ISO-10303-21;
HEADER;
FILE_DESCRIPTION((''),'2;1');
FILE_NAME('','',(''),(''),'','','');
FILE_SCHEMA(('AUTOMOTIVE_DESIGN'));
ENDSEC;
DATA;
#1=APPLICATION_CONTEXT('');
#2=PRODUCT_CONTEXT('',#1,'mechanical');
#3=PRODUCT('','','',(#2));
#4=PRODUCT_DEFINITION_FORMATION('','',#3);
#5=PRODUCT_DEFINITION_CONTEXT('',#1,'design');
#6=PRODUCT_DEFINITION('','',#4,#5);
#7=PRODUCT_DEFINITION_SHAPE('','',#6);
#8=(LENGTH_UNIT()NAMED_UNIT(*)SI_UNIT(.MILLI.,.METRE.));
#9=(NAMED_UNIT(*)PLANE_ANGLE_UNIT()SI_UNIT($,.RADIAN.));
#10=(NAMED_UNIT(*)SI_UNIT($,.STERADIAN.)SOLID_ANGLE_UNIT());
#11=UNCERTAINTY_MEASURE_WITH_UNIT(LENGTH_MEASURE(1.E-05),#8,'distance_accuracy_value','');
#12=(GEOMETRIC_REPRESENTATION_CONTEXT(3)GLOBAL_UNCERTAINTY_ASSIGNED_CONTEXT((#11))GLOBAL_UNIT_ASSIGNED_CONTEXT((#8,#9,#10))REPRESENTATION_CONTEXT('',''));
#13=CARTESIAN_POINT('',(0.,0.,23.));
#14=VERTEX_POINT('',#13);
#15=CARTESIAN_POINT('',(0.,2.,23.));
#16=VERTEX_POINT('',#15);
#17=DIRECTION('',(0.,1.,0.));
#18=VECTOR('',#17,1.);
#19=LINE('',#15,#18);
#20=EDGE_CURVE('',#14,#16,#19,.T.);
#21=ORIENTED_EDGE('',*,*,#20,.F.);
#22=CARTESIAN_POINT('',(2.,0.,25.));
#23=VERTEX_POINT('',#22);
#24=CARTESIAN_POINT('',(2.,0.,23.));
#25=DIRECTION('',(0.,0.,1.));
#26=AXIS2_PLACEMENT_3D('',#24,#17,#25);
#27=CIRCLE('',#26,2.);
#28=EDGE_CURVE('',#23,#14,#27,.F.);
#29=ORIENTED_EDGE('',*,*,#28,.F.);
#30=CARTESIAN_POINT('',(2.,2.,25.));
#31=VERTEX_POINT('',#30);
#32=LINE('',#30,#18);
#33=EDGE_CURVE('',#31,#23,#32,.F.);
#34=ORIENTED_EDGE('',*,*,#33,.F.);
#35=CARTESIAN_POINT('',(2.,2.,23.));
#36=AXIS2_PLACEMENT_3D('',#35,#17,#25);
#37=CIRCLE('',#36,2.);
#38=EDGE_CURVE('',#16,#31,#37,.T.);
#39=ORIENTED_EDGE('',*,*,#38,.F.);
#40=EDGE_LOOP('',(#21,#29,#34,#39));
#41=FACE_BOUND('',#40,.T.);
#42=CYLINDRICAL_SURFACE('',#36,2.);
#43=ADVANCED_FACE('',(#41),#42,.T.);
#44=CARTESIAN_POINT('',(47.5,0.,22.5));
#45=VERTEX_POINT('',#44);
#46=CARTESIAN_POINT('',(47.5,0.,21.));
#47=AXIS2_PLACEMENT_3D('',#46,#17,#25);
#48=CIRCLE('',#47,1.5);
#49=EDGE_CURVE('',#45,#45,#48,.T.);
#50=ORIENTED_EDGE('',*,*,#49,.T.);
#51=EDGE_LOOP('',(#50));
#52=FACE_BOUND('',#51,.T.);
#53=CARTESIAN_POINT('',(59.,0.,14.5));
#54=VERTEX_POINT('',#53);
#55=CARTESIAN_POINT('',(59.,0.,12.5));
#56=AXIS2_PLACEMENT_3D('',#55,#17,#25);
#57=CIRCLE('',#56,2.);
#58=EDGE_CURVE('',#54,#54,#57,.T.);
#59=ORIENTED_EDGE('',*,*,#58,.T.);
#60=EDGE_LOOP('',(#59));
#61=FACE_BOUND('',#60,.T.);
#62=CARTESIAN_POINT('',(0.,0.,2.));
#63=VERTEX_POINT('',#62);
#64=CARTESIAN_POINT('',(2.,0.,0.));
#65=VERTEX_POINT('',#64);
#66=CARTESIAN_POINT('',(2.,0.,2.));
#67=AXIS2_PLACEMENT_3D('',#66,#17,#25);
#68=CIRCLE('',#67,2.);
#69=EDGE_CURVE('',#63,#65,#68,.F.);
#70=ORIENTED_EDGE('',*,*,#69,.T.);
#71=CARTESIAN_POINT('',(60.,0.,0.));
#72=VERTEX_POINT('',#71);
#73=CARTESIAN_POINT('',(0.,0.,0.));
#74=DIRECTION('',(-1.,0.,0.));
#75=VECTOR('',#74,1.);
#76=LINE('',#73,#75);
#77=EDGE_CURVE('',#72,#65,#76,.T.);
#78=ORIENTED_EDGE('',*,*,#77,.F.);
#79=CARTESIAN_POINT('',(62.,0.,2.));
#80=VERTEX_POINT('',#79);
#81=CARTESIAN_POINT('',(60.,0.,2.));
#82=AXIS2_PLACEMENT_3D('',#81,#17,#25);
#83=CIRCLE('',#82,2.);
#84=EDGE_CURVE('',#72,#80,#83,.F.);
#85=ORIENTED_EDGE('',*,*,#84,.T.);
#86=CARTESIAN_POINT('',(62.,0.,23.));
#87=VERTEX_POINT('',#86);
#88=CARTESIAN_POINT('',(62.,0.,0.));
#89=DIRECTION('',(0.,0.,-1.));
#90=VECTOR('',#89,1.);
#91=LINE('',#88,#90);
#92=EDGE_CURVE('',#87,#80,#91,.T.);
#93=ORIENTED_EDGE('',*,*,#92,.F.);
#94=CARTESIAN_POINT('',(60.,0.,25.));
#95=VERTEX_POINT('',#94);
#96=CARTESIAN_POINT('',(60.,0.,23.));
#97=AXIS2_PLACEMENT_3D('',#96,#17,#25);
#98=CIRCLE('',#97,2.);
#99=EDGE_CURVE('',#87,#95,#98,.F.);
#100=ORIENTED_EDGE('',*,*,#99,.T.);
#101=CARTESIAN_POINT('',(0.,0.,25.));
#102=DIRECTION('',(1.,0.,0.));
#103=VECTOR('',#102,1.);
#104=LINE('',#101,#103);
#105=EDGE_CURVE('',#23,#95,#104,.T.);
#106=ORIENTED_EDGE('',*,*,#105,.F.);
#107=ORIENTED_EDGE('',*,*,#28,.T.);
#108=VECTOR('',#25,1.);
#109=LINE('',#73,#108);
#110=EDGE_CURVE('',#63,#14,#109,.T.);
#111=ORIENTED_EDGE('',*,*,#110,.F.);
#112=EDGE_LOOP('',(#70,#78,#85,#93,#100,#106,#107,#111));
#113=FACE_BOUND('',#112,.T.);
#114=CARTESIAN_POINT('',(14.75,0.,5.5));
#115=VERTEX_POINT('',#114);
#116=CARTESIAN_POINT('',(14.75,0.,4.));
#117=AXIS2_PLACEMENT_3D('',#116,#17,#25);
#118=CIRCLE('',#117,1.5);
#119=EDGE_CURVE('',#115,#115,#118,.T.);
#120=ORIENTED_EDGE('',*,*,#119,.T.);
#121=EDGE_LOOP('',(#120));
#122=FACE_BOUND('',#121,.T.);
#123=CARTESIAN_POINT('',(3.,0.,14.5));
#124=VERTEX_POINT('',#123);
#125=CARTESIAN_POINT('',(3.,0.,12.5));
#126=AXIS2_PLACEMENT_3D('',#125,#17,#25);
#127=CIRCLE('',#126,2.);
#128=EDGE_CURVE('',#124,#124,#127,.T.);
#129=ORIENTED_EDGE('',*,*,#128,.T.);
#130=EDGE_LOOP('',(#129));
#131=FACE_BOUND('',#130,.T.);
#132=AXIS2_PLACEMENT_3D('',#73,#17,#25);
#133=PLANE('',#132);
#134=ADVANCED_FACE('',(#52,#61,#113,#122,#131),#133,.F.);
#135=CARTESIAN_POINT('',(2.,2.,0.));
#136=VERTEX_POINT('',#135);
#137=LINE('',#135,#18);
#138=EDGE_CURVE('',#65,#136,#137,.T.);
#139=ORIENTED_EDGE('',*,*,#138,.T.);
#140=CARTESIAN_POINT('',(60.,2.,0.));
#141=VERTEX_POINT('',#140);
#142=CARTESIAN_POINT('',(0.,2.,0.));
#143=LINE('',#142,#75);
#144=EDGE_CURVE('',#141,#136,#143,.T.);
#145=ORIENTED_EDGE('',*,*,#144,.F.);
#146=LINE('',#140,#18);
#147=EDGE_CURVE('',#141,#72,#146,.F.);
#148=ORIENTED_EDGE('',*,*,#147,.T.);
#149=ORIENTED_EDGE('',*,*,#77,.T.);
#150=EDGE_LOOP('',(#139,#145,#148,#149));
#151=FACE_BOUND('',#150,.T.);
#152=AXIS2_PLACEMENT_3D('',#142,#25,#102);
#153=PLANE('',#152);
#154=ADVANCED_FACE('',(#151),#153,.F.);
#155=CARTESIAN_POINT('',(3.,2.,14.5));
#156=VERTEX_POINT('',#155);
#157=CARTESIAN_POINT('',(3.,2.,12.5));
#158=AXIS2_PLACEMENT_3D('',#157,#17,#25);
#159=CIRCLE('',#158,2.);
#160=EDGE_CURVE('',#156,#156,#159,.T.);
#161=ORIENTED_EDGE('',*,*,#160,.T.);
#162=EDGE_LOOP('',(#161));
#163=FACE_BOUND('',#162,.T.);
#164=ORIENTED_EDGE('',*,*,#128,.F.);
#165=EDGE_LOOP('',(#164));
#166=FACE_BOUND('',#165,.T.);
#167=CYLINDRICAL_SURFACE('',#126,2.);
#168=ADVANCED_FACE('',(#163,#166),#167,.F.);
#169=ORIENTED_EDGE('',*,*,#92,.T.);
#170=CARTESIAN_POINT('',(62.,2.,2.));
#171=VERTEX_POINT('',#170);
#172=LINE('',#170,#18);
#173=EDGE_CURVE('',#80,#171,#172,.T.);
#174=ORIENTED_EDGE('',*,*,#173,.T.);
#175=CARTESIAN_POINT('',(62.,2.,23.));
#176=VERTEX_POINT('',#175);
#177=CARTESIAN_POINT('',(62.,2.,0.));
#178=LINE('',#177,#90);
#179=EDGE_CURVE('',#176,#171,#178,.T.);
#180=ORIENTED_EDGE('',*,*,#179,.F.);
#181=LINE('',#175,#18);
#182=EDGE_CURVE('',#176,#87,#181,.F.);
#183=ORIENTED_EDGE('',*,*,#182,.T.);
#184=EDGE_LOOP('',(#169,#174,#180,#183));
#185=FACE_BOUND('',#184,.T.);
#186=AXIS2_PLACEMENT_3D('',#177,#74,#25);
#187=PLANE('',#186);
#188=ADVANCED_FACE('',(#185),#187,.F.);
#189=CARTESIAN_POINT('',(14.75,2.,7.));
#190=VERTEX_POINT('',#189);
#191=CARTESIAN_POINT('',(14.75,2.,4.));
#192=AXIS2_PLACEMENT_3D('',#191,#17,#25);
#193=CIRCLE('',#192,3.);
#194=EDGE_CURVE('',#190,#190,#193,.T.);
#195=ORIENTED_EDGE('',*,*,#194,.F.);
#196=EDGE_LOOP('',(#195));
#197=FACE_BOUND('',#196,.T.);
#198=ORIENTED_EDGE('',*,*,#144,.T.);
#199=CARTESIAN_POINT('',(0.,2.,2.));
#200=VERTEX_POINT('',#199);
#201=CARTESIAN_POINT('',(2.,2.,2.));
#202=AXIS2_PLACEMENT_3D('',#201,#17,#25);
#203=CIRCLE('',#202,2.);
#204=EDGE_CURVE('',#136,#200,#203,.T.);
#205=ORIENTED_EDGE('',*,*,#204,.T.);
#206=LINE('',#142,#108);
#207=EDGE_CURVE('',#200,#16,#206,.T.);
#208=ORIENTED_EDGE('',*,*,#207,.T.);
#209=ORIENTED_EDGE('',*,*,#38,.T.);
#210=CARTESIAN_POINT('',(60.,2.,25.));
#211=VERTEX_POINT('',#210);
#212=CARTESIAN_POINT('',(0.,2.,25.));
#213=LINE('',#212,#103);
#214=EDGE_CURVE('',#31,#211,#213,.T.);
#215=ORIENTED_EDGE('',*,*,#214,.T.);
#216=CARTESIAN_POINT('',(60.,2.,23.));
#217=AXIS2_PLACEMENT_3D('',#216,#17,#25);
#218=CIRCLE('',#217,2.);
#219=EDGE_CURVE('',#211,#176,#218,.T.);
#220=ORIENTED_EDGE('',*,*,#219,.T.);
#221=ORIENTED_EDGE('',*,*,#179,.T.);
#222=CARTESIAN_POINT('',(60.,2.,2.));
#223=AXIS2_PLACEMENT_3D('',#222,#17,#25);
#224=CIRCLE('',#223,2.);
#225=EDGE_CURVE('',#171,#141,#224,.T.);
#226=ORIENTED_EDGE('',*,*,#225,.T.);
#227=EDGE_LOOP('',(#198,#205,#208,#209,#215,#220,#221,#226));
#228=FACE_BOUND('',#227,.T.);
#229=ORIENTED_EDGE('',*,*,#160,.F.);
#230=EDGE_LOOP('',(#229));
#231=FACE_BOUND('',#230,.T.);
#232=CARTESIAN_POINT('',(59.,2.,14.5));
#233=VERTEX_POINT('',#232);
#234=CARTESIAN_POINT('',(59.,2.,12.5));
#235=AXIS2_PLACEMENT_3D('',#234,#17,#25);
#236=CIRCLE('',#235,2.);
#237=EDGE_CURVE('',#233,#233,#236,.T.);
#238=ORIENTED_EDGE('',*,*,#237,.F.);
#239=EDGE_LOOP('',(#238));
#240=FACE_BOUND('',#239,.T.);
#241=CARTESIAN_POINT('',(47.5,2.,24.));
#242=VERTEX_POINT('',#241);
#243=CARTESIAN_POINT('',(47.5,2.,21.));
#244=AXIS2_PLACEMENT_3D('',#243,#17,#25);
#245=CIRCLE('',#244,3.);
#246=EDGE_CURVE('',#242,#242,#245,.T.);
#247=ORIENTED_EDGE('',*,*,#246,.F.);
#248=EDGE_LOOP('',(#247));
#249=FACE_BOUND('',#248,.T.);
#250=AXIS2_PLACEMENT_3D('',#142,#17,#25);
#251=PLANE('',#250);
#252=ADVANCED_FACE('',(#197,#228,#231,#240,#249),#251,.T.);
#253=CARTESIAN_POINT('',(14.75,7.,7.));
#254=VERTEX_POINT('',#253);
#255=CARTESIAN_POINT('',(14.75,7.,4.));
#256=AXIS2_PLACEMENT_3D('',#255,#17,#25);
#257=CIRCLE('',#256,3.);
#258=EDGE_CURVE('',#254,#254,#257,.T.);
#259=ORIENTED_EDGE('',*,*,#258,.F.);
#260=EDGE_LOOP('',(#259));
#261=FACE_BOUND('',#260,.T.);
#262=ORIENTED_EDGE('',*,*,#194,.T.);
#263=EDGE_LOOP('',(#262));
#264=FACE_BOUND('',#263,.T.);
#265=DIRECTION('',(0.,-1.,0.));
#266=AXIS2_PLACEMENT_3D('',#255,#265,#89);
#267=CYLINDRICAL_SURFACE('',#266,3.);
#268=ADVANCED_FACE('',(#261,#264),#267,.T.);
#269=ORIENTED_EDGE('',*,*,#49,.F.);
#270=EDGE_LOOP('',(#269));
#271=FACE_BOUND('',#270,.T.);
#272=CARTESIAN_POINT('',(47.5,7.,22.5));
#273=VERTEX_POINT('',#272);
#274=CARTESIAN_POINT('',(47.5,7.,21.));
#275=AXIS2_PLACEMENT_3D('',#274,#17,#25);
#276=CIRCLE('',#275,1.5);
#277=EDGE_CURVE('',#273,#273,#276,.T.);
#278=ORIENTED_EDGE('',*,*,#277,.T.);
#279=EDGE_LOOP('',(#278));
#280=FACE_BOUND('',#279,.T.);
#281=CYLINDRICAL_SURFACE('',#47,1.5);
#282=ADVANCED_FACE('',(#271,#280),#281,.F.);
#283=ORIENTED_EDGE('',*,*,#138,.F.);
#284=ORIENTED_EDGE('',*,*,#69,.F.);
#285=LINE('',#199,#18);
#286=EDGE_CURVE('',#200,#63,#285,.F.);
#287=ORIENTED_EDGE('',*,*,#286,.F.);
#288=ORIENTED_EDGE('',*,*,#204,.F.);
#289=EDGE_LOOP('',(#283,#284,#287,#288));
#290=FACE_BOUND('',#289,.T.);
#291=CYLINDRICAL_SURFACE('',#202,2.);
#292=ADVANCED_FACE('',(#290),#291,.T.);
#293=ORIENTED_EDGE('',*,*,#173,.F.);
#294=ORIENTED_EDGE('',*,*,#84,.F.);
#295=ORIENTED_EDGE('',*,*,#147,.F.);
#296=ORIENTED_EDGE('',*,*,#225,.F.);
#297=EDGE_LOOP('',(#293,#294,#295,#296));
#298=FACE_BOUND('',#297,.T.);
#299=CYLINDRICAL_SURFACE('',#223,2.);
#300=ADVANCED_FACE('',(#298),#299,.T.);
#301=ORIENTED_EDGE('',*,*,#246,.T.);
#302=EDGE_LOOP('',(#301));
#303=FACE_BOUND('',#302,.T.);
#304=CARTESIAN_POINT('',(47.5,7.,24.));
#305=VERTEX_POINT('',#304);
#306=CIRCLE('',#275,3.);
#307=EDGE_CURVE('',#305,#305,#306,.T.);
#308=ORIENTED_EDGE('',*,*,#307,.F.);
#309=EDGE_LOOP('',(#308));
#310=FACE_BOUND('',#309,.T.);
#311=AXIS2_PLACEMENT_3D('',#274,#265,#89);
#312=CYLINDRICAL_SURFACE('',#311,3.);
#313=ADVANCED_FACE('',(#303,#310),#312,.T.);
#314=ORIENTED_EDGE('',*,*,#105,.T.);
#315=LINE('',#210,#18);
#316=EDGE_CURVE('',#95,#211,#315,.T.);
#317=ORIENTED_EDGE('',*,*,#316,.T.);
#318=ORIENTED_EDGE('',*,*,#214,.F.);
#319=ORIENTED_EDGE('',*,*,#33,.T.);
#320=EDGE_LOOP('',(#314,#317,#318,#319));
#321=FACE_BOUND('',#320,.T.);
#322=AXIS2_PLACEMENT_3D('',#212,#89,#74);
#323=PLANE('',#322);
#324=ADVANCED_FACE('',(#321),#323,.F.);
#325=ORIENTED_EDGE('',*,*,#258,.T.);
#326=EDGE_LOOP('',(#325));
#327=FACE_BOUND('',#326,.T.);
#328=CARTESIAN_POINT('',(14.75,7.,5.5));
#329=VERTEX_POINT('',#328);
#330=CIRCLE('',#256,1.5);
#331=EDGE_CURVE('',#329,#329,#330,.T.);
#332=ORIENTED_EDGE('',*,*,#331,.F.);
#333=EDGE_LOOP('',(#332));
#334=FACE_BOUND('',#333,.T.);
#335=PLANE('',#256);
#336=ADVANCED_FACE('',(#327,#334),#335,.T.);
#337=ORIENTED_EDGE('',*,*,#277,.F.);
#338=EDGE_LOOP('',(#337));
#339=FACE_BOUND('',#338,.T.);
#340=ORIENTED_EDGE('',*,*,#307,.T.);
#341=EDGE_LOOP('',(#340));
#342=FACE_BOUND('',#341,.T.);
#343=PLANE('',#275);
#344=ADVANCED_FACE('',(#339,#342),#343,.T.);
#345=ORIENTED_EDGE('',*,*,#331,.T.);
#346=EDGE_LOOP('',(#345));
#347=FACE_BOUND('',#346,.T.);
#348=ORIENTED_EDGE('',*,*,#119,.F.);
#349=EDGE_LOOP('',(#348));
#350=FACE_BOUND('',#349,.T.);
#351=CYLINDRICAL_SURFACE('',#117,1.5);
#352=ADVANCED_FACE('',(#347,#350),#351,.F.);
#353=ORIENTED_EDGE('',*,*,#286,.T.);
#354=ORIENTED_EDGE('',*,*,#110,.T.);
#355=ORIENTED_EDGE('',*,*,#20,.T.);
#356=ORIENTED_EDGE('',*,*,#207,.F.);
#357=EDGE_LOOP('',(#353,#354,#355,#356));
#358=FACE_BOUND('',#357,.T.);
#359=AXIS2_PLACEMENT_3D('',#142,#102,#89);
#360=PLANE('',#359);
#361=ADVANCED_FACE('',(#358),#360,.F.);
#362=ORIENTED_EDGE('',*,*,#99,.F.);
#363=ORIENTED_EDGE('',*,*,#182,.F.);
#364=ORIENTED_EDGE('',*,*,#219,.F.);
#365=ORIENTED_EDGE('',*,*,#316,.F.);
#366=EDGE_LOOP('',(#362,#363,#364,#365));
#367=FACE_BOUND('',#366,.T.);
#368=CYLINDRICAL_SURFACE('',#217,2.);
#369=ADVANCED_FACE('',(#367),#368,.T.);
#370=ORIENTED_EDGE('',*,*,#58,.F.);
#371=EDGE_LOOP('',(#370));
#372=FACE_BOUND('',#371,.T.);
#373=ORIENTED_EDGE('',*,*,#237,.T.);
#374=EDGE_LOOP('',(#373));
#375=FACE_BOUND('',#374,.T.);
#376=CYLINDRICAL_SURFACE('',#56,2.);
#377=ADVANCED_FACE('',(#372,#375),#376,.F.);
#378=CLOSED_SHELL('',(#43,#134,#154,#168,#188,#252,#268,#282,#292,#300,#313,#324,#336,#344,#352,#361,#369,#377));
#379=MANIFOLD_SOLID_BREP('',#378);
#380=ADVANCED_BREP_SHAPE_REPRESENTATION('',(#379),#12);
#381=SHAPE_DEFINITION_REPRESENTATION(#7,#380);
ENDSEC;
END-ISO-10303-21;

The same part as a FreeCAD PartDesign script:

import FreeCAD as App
import Part
import Sketcher
from FreeCAD import Vector


def edges_at(feature, points):
    """Names of the edges that pass closest to the given points."""
    edges = feature.Shape.Edges
    near = lambda p: min(range(len(edges)), key=lambda i: edges[i].distToShape(Part.Vertex(*p))[0])
    return sorted({f"Edge{near(p) + 1}" for p in points})

doc = App.newDocument("Part")
body = doc.addObject("PartDesign::Body", "Body")

sketch1 = body.newObject("Sketcher::SketchObject", "Sketch")
sketch1.AttachmentSupport = (doc.getObject("XZ_Plane"), [""])
sketch1.MapMode = "FlatFace"
sketch1.addGeometry([
    Part.LineSegment(Vector(0, 0, 0), Vector(0, 25, 0)),
    Part.LineSegment(Vector(0, 25, 0), Vector(62, 25, 0)),
    Part.LineSegment(Vector(62, 25, 0), Vector(62, 0, 0)),
    Part.LineSegment(Vector(62, 0, 0), Vector(0, 0, 0)),
], False)
sketch1.addConstraint([
    Sketcher.Constraint("Coincident", 0, 2, 1, 1),
    Sketcher.Constraint("Coincident", 1, 2, 2, 1),
    Sketcher.Constraint("Coincident", 2, 2, 3, 1),
    Sketcher.Constraint("Coincident", 3, 2, 0, 1),
    Sketcher.Constraint("Vertical", 0),
    Sketcher.Constraint("Horizontal", 1),
    Sketcher.Constraint("Vertical", 2),
    Sketcher.Constraint("Horizontal", 3),
    Sketcher.Constraint("Coincident", 3, 2, -1, 1),
    Sketcher.Constraint("DistanceX", 1, 1, 1, 2, 62.0),
    Sketcher.Constraint("DistanceY", 0, 1, 0, 2, 25.0),
])
pad1 = body.newObject("PartDesign::Pad", "Pad")
pad1.Profile = sketch1
pad1.Length = 2
pad1.Reversed = True

sketch2 = body.newObject("Sketcher::SketchObject", "Sketch001")
sketch2.AttachmentSupport = (doc.getObject("XZ_Plane"), [""])
sketch2.MapMode = "FlatFace"
sketch2.AttachmentOffset = App.Placement(Vector(0, 0, -2), App.Rotation())
sketch2.addGeometry([
    Part.Circle(Vector(14.8, 4, 0), Vector(0, 0, 1), 3),
    Part.Circle(Vector(47.5, 21, 0), Vector(0, 0, 1), 3),
], False)
sketch2.addConstraint([
    Sketcher.Constraint("Equal", 0, 1),
    Sketcher.Constraint("Diameter", 0, 6.0),
    Sketcher.Constraint("DistanceY", -1, 1, 0, 3, 4.0),
    Sketcher.Constraint("DistanceY", -1, 1, 1, 3, 21.0),
    Sketcher.Constraint("DistanceX", -1, 1, 1, 3, 47.5),
    Sketcher.Constraint("DistanceX", -1, 1, 0, 3, 14.75),
])
pad2 = body.newObject("PartDesign::Pad", "Pad001")
pad2.Profile = sketch2
pad2.Length = 5
pad2.Reversed = True

sketch3 = body.newObject("Sketcher::SketchObject", "Sketch002")
sketch3.AttachmentSupport = (doc.getObject("XZ_Plane"), [""])
sketch3.MapMode = "FlatFace"
sketch3.AttachmentOffset = App.Placement(Vector(0, 0, -7), App.Rotation())
sketch3.addGeometry([
    Part.Circle(Vector(14.8, 4, 0), Vector(0, 0, 1), 1.5),
    Part.Circle(Vector(47.5, 21, 0), Vector(0, 0, 1), 1.5),
], False)
sketch3.addConstraint([
    Sketcher.Constraint("Equal", 0, 1),
    Sketcher.Constraint("Diameter", 0, 3.0),
    Sketcher.Constraint("DistanceY", -1, 1, 0, 3, 4.0),
    Sketcher.Constraint("DistanceY", -1, 1, 1, 3, 21.0),
    Sketcher.Constraint("DistanceX", -1, 1, 1, 3, 47.5),
    Sketcher.Constraint("DistanceX", -1, 1, 0, 3, 14.75),
])
pocket1 = body.newObject("PartDesign::Pocket", "Pocket")
pocket1.Profile = sketch3
pocket1.Type = "ThroughAll"
pocket1.Midplane = True

sketch4 = body.newObject("Sketcher::SketchObject", "Sketch003")
sketch4.AttachmentSupport = (doc.getObject("XZ_Plane"), [""])
sketch4.MapMode = "FlatFace"
sketch4.AttachmentOffset = App.Placement(Vector(0, 0, -2), App.Rotation())
sketch4.addGeometry([
    Part.Circle(Vector(3, 12.5, 0), Vector(0, 0, 1), 2),
    Part.Circle(Vector(59, 12.5, 0), Vector(0, 0, 1), 2),
], False)
sketch4.addConstraint([
    Sketcher.Constraint("Equal", 0, 1),
    Sketcher.Constraint("Horizontal", 0, 3, 1, 3),
    Sketcher.Constraint("Diameter", 0, 4.0),
    Sketcher.Constraint("DistanceX", -1, 1, 0, 3, 3.0),
    Sketcher.Constraint("DistanceX", -1, 1, 1, 3, 59.0),
    Sketcher.Constraint("DistanceY", -1, 1, 0, 3, 12.5),
])
pocket2 = body.newObject("PartDesign::Pocket", "Pocket001")
pocket2.Profile = sketch4
pocket2.Type = "ThroughAll"
pocket2.Midplane = True
doc.recompute()

fillet = body.newObject("PartDesign::Fillet", "Fillet")
fillet.Base = (pocket2, edges_at(pocket2, [(0, 1, 0)]))
fillet.Radius = 2
doc.recompute()

fillet2 = body.newObject("PartDesign::Fillet", "Fillet001")
fillet2.Base = (fillet, edges_at(fillet, [(0, 1, 25)]))
fillet2.Radius = 2
doc.recompute()

fillet3 = body.newObject("PartDesign::Fillet", "Fillet002")
fillet3.Base = (fillet2, edges_at(fillet2, [(62, 1, 25)]))
fillet3.Radius = 2
doc.recompute()

fillet4 = body.newObject("PartDesign::Fillet", "Fillet003")
fillet4.Base = (fillet3, edges_at(fillet3, [(62, 1, 0)]))
fillet4.Radius = 2

doc.recompute()
